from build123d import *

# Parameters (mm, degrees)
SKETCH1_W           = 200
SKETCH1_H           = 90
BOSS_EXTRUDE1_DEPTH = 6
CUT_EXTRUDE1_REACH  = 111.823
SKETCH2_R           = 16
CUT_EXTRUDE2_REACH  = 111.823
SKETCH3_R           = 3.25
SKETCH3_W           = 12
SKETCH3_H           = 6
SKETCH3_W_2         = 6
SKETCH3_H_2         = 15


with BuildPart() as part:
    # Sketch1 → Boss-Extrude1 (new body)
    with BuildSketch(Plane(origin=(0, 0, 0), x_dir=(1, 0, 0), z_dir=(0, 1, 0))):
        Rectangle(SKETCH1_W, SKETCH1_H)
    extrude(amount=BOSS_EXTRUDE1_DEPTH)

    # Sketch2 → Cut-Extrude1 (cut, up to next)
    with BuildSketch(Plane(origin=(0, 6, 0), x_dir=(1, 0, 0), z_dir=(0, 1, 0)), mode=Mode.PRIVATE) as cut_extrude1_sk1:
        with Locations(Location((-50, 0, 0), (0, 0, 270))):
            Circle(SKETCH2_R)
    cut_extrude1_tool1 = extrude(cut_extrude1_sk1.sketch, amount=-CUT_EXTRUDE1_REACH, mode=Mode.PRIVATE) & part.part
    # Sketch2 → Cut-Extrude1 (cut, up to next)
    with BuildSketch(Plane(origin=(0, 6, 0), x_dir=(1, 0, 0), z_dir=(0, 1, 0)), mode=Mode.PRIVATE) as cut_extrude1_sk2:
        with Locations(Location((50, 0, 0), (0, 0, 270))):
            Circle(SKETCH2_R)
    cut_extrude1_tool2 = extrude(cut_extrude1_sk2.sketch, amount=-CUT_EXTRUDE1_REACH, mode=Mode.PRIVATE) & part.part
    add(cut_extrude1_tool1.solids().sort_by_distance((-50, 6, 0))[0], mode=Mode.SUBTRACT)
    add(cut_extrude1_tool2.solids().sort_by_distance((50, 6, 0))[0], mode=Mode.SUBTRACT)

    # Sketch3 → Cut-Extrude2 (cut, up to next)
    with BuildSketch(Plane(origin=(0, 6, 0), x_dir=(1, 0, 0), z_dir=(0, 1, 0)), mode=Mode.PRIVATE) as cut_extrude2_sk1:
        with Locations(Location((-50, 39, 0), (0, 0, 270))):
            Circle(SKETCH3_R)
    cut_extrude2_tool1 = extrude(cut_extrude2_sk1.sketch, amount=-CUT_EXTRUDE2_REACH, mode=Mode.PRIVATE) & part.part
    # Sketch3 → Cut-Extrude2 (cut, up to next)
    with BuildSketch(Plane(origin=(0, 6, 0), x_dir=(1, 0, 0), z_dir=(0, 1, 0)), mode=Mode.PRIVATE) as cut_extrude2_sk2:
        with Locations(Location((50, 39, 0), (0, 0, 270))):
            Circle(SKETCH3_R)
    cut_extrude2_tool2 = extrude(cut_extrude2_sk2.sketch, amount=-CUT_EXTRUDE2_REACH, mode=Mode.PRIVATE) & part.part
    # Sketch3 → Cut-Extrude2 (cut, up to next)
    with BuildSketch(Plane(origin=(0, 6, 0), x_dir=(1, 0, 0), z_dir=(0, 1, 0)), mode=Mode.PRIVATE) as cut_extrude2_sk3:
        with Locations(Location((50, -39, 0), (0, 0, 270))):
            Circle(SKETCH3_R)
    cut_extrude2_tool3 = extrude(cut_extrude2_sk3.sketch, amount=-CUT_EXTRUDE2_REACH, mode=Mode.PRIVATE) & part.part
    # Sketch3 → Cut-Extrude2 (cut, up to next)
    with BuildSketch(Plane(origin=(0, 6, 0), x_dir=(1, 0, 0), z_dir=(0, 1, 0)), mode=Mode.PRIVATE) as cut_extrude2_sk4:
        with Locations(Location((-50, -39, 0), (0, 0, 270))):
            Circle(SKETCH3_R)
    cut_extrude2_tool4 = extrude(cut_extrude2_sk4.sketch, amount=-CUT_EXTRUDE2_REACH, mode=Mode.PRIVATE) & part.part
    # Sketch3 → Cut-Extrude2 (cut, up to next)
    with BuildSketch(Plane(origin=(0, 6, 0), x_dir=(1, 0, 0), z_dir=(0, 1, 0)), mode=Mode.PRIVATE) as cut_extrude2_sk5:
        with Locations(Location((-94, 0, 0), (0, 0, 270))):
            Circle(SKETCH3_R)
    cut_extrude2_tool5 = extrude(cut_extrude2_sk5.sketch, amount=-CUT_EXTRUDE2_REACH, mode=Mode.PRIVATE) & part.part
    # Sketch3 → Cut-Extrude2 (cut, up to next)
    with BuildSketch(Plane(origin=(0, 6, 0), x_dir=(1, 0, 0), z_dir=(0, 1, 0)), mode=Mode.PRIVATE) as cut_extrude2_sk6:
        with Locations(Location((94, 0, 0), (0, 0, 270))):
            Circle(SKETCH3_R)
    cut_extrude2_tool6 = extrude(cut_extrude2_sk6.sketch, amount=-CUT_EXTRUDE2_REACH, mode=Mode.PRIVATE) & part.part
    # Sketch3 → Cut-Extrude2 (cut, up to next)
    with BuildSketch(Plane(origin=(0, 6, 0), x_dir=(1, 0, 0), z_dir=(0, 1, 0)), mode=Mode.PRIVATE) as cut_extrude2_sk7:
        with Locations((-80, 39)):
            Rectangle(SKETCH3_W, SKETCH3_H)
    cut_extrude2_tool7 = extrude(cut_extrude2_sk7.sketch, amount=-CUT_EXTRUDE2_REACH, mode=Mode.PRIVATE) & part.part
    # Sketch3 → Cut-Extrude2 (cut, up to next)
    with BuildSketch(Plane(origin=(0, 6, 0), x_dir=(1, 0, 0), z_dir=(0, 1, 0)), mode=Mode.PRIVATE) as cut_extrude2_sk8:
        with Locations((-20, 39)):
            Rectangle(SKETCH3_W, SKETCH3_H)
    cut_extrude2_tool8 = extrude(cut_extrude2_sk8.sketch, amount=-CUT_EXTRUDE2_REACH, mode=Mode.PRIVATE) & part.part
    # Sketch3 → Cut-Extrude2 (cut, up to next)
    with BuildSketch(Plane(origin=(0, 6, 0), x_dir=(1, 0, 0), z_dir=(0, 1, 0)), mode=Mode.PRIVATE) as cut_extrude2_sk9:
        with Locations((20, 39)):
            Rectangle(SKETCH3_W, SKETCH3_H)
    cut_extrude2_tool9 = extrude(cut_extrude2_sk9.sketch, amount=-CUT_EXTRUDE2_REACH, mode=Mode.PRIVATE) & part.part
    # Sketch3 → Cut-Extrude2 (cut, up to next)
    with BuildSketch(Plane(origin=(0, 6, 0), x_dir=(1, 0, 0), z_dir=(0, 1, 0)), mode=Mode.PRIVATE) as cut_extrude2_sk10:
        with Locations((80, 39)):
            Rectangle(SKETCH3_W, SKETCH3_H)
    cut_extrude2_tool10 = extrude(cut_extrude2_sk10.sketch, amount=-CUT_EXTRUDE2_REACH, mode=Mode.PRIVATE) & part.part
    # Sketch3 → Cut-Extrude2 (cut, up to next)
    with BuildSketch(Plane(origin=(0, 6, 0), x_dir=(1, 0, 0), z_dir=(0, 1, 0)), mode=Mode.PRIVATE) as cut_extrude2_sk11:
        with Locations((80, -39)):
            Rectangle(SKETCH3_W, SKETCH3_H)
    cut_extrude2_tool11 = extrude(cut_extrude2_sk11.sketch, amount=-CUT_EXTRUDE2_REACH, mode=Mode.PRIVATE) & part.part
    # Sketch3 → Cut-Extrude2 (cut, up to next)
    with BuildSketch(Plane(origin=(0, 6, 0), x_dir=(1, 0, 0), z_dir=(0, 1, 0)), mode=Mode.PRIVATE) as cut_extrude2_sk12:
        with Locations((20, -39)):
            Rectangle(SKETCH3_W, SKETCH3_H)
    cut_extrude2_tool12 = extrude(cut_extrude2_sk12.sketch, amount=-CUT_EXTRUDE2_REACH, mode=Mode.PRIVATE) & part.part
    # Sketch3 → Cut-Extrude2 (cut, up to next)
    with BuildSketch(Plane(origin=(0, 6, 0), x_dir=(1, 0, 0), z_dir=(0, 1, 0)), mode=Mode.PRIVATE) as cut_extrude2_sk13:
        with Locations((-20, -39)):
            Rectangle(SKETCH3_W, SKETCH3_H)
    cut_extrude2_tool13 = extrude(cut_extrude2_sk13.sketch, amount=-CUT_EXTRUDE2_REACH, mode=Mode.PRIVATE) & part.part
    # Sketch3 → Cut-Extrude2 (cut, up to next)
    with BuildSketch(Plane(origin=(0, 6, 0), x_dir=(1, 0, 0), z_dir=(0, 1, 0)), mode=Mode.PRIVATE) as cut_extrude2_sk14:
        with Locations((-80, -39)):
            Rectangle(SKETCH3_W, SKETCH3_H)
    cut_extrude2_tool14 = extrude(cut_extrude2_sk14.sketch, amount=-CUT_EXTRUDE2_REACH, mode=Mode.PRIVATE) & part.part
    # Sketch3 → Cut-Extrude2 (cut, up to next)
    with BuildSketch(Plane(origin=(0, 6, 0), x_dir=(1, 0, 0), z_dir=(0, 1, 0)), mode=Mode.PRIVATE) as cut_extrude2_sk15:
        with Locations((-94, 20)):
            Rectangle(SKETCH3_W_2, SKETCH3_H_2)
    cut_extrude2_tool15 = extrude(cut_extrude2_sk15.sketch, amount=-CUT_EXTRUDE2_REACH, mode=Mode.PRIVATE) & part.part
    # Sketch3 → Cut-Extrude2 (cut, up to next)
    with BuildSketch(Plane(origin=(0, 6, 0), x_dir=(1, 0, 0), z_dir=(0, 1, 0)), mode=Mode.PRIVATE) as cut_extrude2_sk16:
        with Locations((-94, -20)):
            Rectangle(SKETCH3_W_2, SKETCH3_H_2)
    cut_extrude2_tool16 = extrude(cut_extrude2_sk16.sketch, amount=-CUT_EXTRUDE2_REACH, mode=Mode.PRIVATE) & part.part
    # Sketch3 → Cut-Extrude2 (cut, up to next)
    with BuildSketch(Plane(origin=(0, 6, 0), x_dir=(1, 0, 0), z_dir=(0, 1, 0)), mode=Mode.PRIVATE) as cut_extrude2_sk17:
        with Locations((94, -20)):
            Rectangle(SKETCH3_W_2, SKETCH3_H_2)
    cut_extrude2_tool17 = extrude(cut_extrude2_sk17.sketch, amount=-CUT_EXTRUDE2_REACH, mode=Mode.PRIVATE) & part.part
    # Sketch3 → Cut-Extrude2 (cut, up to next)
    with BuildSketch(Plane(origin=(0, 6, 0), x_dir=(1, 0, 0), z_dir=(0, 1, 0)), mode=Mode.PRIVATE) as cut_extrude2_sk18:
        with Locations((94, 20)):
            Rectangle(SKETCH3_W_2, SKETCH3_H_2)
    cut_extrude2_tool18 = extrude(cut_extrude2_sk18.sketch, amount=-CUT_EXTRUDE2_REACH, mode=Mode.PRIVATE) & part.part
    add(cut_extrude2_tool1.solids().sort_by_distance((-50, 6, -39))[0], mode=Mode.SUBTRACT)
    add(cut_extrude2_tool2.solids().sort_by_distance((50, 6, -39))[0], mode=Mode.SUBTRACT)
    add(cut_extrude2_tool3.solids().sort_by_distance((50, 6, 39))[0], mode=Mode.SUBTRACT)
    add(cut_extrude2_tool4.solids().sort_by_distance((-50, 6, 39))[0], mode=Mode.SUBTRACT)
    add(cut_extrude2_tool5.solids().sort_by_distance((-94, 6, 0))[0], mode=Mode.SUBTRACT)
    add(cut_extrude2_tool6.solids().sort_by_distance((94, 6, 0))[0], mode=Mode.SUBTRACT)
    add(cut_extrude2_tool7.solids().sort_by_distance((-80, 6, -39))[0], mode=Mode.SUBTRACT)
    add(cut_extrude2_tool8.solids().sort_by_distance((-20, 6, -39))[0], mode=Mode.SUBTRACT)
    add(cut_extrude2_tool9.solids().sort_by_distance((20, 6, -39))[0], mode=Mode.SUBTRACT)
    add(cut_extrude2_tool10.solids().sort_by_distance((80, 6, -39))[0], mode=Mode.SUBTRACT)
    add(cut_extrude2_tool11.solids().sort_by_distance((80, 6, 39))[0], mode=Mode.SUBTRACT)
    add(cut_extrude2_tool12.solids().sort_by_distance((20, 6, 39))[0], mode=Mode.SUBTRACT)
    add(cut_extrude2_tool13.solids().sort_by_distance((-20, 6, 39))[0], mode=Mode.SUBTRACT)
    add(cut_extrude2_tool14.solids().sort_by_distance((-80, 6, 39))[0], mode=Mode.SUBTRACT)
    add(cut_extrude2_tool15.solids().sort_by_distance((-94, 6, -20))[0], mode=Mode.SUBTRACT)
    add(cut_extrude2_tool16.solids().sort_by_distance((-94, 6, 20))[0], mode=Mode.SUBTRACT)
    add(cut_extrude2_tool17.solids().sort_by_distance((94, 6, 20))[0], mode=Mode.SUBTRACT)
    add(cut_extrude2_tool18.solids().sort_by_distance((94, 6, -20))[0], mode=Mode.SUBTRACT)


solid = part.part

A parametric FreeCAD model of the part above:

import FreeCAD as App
import Part
import Sketcher

V = App.Vector
Q = App.Units.Quantity

doc = App.newDocument("Part")
params = doc.addObject("Spreadsheet::Sheet", "Params")
for row, (alias, value) in enumerate([
    ("sketch1_width", "200 mm"),
    ("sketch1_height", "90 mm"),
    ("pad1_length", "6 mm"),
    ("sketch2_diameter", "32 mm"),
    ("sketch3_diameter", "32 mm"),
    ("sketch4_diameter", "6.5 mm"),
    ("sketch5_diameter", "6.5 mm"),
    ("sketch6_diameter", "6.5 mm"),
    ("sketch7_diameter", "6.5 mm"),
    ("sketch8_diameter", "6.5 mm"),
    ("sketch9_diameter", "6.5 mm"),
    ("sketch10_width", "12 mm"),
    ("sketch10_height", "6 mm"),
    ("sketch11_width", "12 mm"),
    ("sketch11_height", "6 mm"),
    ("sketch12_width", "12 mm"),
    ("sketch12_height", "6 mm"),
    ("sketch13_width", "12 mm"),
    ("sketch13_height", "6 mm"),
    ("sketch14_width", "12 mm"),
    ("sketch14_height", "6 mm"),
    ("sketch15_width", "12 mm"),
    ("sketch15_height", "6 mm"),
    ("sketch16_width", "12 mm"),
    ("sketch16_height", "6 mm"),
    ("sketch17_width", "12 mm"),
    ("sketch17_height", "6 mm"),
    ("sketch18_width", "6 mm"),
    ("sketch18_height", "15 mm"),
    ("sketch19_width", "6 mm"),
    ("sketch19_height", "15 mm"),
    ("sketch20_width", "6 mm"),
    ("sketch20_height", "15 mm"),
    ("sketch21_width", "6 mm"),
    ("sketch21_height", "15 mm"),
], start=1):
    params.set(f"A{row}", alias)
    params.set(f"B{row}", "=" + value)
    params.setAlias(f"B{row}", alias)

body = doc.addObject("PartDesign::Body", "Body")

sketch1 = doc.addObject("Sketcher::SketchObject", "Sketch")
body.addObject(sketch1)
sketch1.AttachmentSupport = (doc.XZ_Plane, [""])
sketch1.MapMode = "FlatFace"
sketch1.addGeometry(Part.LineSegment(V(-100, -45, 0), V(-100, 45, 0)), False)
sketch1.addGeometry(Part.LineSegment(V(-100, 45, 0), V(100, 45, 0)), False)
sketch1.addGeometry(Part.LineSegment(V(100, 45, 0), V(100, -45, 0)), False)
sketch1.addGeometry(Part.LineSegment(V(100, -45, 0), V(-100, -45, 0)), False)
sketch1.addConstraint(Sketcher.Constraint("Coincident", 0, 2, 1, 1))
sketch1.addConstraint(Sketcher.Constraint("Coincident", 1, 2, 2, 1))
sketch1.addConstraint(Sketcher.Constraint("Coincident", 2, 2, 3, 1))
sketch1.addConstraint(Sketcher.Constraint("Coincident", 3, 2, 0, 1))
sketch1.addConstraint(Sketcher.Constraint("Vertical", 0))
sketch1.addConstraint(Sketcher.Constraint("Horizontal", 1))
sketch1.addConstraint(Sketcher.Constraint("Vertical", 2))
sketch1.addConstraint(Sketcher.Constraint("Horizontal", 3))
sketch1.addConstraint(Sketcher.Constraint("Symmetric", 0, 2, 2, 2, -1, 1))
sketch1.addConstraint(Sketcher.Constraint("DistanceX", 1, 1, 1, 2, Q("200 mm")))
sketch1.addConstraint(Sketcher.Constraint("DistanceY", 0, 1, 0, 2, Q("90 mm")))
sketch1.setExpression("Constraints[9]", "Params.sketch1_width")
sketch1.setExpression("Constraints[10]", "Params.sketch1_height")
pad1 = doc.addObject("PartDesign::Pad", "Pad")
body.addObject(pad1)
pad1.Profile = sketch1
pad1.setExpression("Length", "Params.pad1_length")
pad1.Reversed = True

sketch2 = doc.addObject("Sketcher::SketchObject", "Sketch001")
body.addObject(sketch2)
sketch2.AttachmentSupport = (doc.XZ_Plane, [""])
sketch2.MapMode = "FlatFace"
sketch2.AttachmentOffset = App.Placement(V(0, 0, -6), App.Rotation())
sketch2.addGeometry(Part.Circle(V(-50, 0, 0), V(0, 0, 1), 16), False)
sketch2.addConstraint(Sketcher.Constraint("PointOnObject", 0, 3, -1))
sketch2.addConstraint(Sketcher.Constraint("Diameter", 0, Q("32 mm")))
sketch2.addConstraint(Sketcher.Constraint("DistanceX", 0, 3, -1, 1, Q("50 mm")))
sketch2.setExpression("Constraints[1]", "Params.sketch2_diameter")
pocket1 = doc.addObject("PartDesign::Pocket", "Pocket")
body.addObject(pocket1)
pocket1.Profile = sketch2
pocket1.Type = "UpToFirst"
pocket1.Reversed = True

sketch3 = doc.addObject("Sketcher::SketchObject", "Sketch002")
body.addObject(sketch3)
sketch3.AttachmentSupport = (doc.XZ_Plane, [""])
sketch3.MapMode = "FlatFace"
sketch3.AttachmentOffset = App.Placement(V(0, 0, -6), App.Rotation())
sketch3.addGeometry(Part.Circle(V(50, 0, 0), V(0, 0, 1), 16), False)
sketch3.addConstraint(Sketcher.Constraint("PointOnObject", 0, 3, -1))
sketch3.addConstraint(Sketcher.Constraint("Diameter", 0, Q("32 mm")))
sketch3.addConstraint(Sketcher.Constraint("DistanceX", -1, 1, 0, 3, Q("50 mm")))
sketch3.setExpression("Constraints[1]", "Params.sketch3_diameter")
pocket2 = doc.addObject("PartDesign::Pocket", "Pocket001")
body.addObject(pocket2)
pocket2.Profile = sketch3
pocket2.Type = "UpToFirst"
pocket2.Reversed = True

sketch4 = doc.addObject("Sketcher::SketchObject", "Sketch003")
body.addObject(sketch4)
sketch4.AttachmentSupport = (doc.XZ_Plane, [""])
sketch4.MapMode = "FlatFace"
sketch4.AttachmentOffset = App.Placement(V(0, 0, -6), App.Rotation())
sketch4.addGeometry(Part.Circle(V(-50, -39, 0), V(0, 0, 1), 3.2), False)
sketch4.addConstraint(Sketcher.Constraint("Diameter", 0, Q("6.5 mm")))
sketch4.addConstraint(Sketcher.Constraint("DistanceX", 0, 3, -1, 1, Q("50 mm")))
sketch4.addConstraint(Sketcher.Constraint("DistanceY", 0, 3, -1, 1, Q("39 mm")))
sketch4.setExpression("Constraints[0]", "Params.sketch4_diameter")
pocket3 = doc.addObject("PartDesign::Pocket", "Pocket002")
body.addObject(pocket3)
pocket3.Profile = sketch4
pocket3.Type = "UpToFirst"
pocket3.Reversed = True

sketch5 = doc.addObject("Sketcher::SketchObject", "Sketch004")
body.addObject(sketch5)
sketch5.AttachmentSupport = (doc.XZ_Plane, [""])
sketch5.MapMode = "FlatFace"
sketch5.AttachmentOffset = App.Placement(V(0, 0, -6), App.Rotation())
sketch5.addGeometry(Part.Circle(V(50, -39, 0), V(0, 0, 1), 3.2), False)
sketch5.addConstraint(Sketcher.Constraint("Diameter", 0, Q("6.5 mm")))
sketch5.addConstraint(Sketcher.Constraint("DistanceX", -1, 1, 0, 3, Q("50 mm")))
sketch5.addConstraint(Sketcher.Constraint("DistanceY", 0, 3, -1, 1, Q("39 mm")))
sketch5.setExpression("Constraints[0]", "Params.sketch5_diameter")
pocket4 = doc.addObject("PartDesign::Pocket", "Pocket003")
body.addObject(pocket4)
pocket4.Profile = sketch5
pocket4.Type = "UpToFirst"
pocket4.Reversed = True

sketch6 = doc.addObject("Sketcher::SketchObject", "Sketch005")
body.addObject(sketch6)
sketch6.AttachmentSupport = (doc.XZ_Plane, [""])
sketch6.MapMode = "FlatFace"
sketch6.AttachmentOffset = App.Placement(V(0, 0, -6), App.Rotation())
sketch6.addGeometry(Part.Circle(V(50, 39, 0), V(0, 0, 1), 3.2), False)
sketch6.addConstraint(Sketcher.Constraint("Diameter", 0, Q("6.5 mm")))
sketch6.addConstraint(Sketcher.Constraint("DistanceX", -1, 1, 0, 3, Q("50 mm")))
sketch6.addConstraint(Sketcher.Constraint("DistanceY", -1, 1, 0, 3, Q("39 mm")))
sketch6.setExpression("Constraints[0]", "Params.sketch6_diameter")
pocket5 = doc.addObject("PartDesign::Pocket", "Pocket004")
body.addObject(pocket5)
pocket5.Profile = sketch6
pocket5.Type = "UpToFirst"
pocket5.Reversed = True

sketch7 = doc.addObject("Sketcher::SketchObject", "Sketch006")
body.addObject(sketch7)
sketch7.AttachmentSupport = (doc.XZ_Plane, [""])
sketch7.MapMode = "FlatFace"
sketch7.AttachmentOffset = App.Placement(V(0, 0, -6), App.Rotation())
sketch7.addGeometry(Part.Circle(V(-50, 39, 0), V(0, 0, 1), 3.2), False)
sketch7.addConstraint(Sketcher.Constraint("Diameter", 0, Q("6.5 mm")))
sketch7.addConstraint(Sketcher.Constraint("DistanceX", 0, 3, -1, 1, Q("50 mm")))
sketch7.addConstraint(Sketcher.Constraint("DistanceY", -1, 1, 0, 3, Q("39 mm")))
sketch7.setExpression("Constraints[0]", "Params.sketch7_diameter")
pocket6 = doc.addObject("PartDesign::Pocket", "Pocket005")
body.addObject(pocket6)
pocket6.Profile = sketch7
pocket6.Type = "UpToFirst"
pocket6.Reversed = True

sketch8 = doc.addObject("Sketcher::SketchObject", "Sketch007")
body.addObject(sketch8)
sketch8.AttachmentSupport = (doc.XZ_Plane, [""])
sketch8.MapMode = "FlatFace"
sketch8.AttachmentOffset = App.Placement(V(0, 0, -6), App.Rotation())
sketch8.addGeometry(Part.Circle(V(-94, 0, 0), V(0, 0, 1), 3.2), False)
sketch8.addConstraint(Sketcher.Constraint("PointOnObject", 0, 3, -1))
sketch8.addConstraint(Sketcher.Constraint("Diameter", 0, Q("6.5 mm")))
sketch8.addConstraint(Sketcher.Constraint("DistanceX", 0, 3, -1, 1, Q("94 mm")))
sketch8.setExpression("Constraints[1]", "Params.sketch8_diameter")
pocket7 = doc.addObject("PartDesign::Pocket", "Pocket006")
body.addObject(pocket7)
pocket7.Profile = sketch8
pocket7.Type = "UpToFirst"
pocket7.Reversed = True

sketch9 = doc.addObject("Sketcher::SketchObject", "Sketch008")
body.addObject(sketch9)
sketch9.AttachmentSupport = (doc.XZ_Plane, [""])
sketch9.MapMode = "FlatFace"
sketch9.AttachmentOffset = App.Placement(V(0, 0, -6), App.Rotation())
sketch9.addGeometry(Part.Circle(V(94, 0, 0), V(0, 0, 1), 3.2), False)
sketch9.addConstraint(Sketcher.Constraint("PointOnObject", 0, 3, -1))
sketch9.addConstraint(Sketcher.Constraint("Diameter", 0, Q("6.5 mm")))
sketch9.addConstraint(Sketcher.Constraint("DistanceX", -1, 1, 0, 3, Q("94 mm")))
sketch9.setExpression("Constraints[1]", "Params.sketch9_diameter")
pocket8 = doc.addObject("PartDesign::Pocket", "Pocket007")
body.addObject(pocket8)
pocket8.Profile = sketch9
pocket8.Type = "UpToFirst"
pocket8.Reversed = True

sketch10 = doc.addObject("Sketcher::SketchObject", "Sketch009")
body.addObject(sketch10)
sketch10.AttachmentSupport = (doc.XZ_Plane, [""])
sketch10.MapMode = "FlatFace"
sketch10.AttachmentOffset = App.Placement(V(0, 0, -6), App.Rotation())
sketch10.addGeometry(Part.LineSegment(V(-86, -42, 0), V(-86, -36, 0)), False)
sketch10.addGeometry(Part.LineSegment(V(-86, -36, 0), V(-74, -36, 0)), False)
sketch10.addGeometry(Part.LineSegment(V(-74, -36, 0), V(-74, -42, 0)), False)
sketch10.addGeometry(Part.LineSegment(V(-74, -42, 0), V(-86, -42, 0)), False)
sketch10.addConstraint(Sketcher.Constraint("Coincident", 0, 2, 1, 1))
sketch10.addConstraint(Sketcher.Constraint("Coincident", 1, 2, 2, 1))
sketch10.addConstraint(Sketcher.Constraint("Coincident", 2, 2, 3, 1))
sketch10.addConstraint(Sketcher.Constraint("Coincident", 3, 2, 0, 1))
sketch10.addConstraint(Sketcher.Constraint("Vertical", 0))
sketch10.addConstraint(Sketcher.Constraint("Horizontal", 1))
sketch10.addConstraint(Sketcher.Constraint("Vertical", 2))
sketch10.addConstraint(Sketcher.Constraint("Horizontal", 3))
sketch10.addConstraint(Sketcher.Constraint("DistanceX", 1, 1, 1, 2, Q("12 mm")))
sketch10.addConstraint(Sketcher.Constraint("DistanceY", 0, 1, 0, 2, Q("6 mm")))
sketch10.addConstraint(Sketcher.Constraint("DistanceX", 0, 2, -1, 1, Q("86 mm")))
sketch10.addConstraint(Sketcher.Constraint("DistanceY", 0, 2, -1, 1, Q("36 mm")))
sketch10.setExpression("Constraints[8]", "Params.sketch10_width")
sketch10.setExpression("Constraints[9]", "Params.sketch10_height")
pocket9 = doc.addObject("PartDesign::Pocket", "Pocket008")
body.addObject(pocket9)
pocket9.Profile = sketch10
pocket9.Type = "UpToFirst"
pocket9.Reversed = True

sketch11 = doc.addObject("Sketcher::SketchObject", "Sketch010")
body.addObject(sketch11)
sketch11.AttachmentSupport = (doc.XZ_Plane, [""])
sketch11.MapMode = "FlatFace"
sketch11.AttachmentOffset = App.Placement(V(0, 0, -6), App.Rotation())
sketch11.addGeometry(Part.LineSegment(V(-26, -42, 0), V(-26, -36, 0)), False)
sketch11.addGeometry(Part.LineSegment(V(-26, -36, 0), V(-14, -36, 0)), False)
sketch11.addGeometry(Part.LineSegment(V(-14, -36, 0), V(-14, -42, 0)), False)
sketch11.addGeometry(Part.LineSegment(V(-14, -42, 0), V(-26, -42, 0)), False)
sketch11.addConstraint(Sketcher.Constraint("Coincident", 0, 2, 1, 1))
sketch11.addConstraint(Sketcher.Constraint("Coincident", 1, 2, 2, 1))
sketch11.addConstraint(Sketcher.Constraint("Coincident", 2, 2, 3, 1))
sketch11.addConstraint(Sketcher.Constraint("Coincident", 3, 2, 0, 1))
sketch11.addConstraint(Sketcher.Constraint("Vertical", 0))
sketch11.addConstraint(Sketcher.Constraint("Horizontal", 1))
sketch11.addConstraint(Sketcher.Constraint("Vertical", 2))
sketch11.addConstraint(Sketcher.Constraint("Horizontal", 3))
sketch11.addConstraint(Sketcher.Constraint("DistanceX", 1, 1, 1, 2, Q("12 mm")))
sketch11.addConstraint(Sketcher.Constraint("DistanceY", 0, 1, 0, 2, Q("6 mm")))
sketch11.addConstraint(Sketcher.Constraint("DistanceX", 0, 2, -1, 1, Q("26 mm")))
sketch11.addConstraint(Sketcher.Constraint("DistanceY", 0, 2, -1, 1, Q("36 mm")))
sketch11.setExpression("Constraints[8]", "Params.sketch11_width")
sketch11.setExpression("Constraints[9]", "Params.sketch11_height")
pocket10 = doc.addObject("PartDesign::Pocket", "Pocket009")
body.addObject(pocket10)
pocket10.Profile = sketch11
pocket10.Type = "UpToFirst"
pocket10.Reversed = True

sketch12 = doc.addObject("Sketcher::SketchObject", "Sketch011")
body.addObject(sketch12)
sketch12.AttachmentSupport = (doc.XZ_Plane, [""])
sketch12.MapMode = "FlatFace"
sketch12.AttachmentOffset = App.Placement(V(0, 0, -6), App.Rotation())
sketch12.addGeometry(Part.LineSegment(V(14, -42, 0), V(14, -36, 0)), False)
sketch12.addGeometry(Part.LineSegment(V(14, -36, 0), V(26, -36, 0)), False)
sketch12.addGeometry(Part.LineSegment(V(26, -36, 0), V(26, -42, 0)), False)
sketch12.addGeometry(Part.LineSegment(V(26, -42, 0), V(14, -42, 0)), False)
sketch12.addConstraint(Sketcher.Constraint("Coincident", 0, 2, 1, 1))
sketch12.addConstraint(Sketcher.Constraint("Coincident", 1, 2, 2, 1))
sketch12.addConstraint(Sketcher.Constraint("Coincident", 2, 2, 3, 1))
sketch12.addConstraint(Sketcher.Constraint("Coincident", 3, 2, 0, 1))
sketch12.addConstraint(Sketcher.Constraint("Vertical", 0))
sketch12.addConstraint(Sketcher.Constraint("Horizontal", 1))
sketch12.addConstraint(Sketcher.Constraint("Vertical", 2))
sketch12.addConstraint(Sketcher.Constraint("Horizontal", 3))
sketch12.addConstraint(Sketcher.Constraint("DistanceX", 1, 1, 1, 2, Q("12 mm")))
sketch12.addConstraint(Sketcher.Constraint("DistanceY", 0, 1, 0, 2, Q("6 mm")))
sketch12.addConstraint(Sketcher.Constraint("DistanceX", -1, 1, 0, 2, Q("14 mm")))
sketch12.addConstraint(Sketcher.Constraint("DistanceY", 0, 2, -1, 1, Q("36 mm")))
sketch12.setExpression("Constraints[8]", "Params.sketch12_width")
sketch12.setExpression("Constraints[9]", "Params.sketch12_height")
pocket11 = doc.addObject("PartDesign::Pocket", "Pocket010")
body.addObject(pocket11)
pocket11.Profile = sketch12
pocket11.Type = "UpToFirst"
pocket11.Reversed = True

sketch13 = doc.addObject("Sketcher::SketchObject", "Sketch012")
body.addObject(sketch13)
sketch13.AttachmentSupport = (doc.XZ_Plane, [""])
sketch13.MapMode = "FlatFace"
sketch13.AttachmentOffset = App.Placement(V(0, 0, -6), App.Rotation())
sketch13.addGeometry(Part.LineSegment(V(74, -42, 0), V(74, -36, 0)), False)
sketch13.addGeometry(Part.LineSegment(V(74, -36, 0), V(86, -36, 0)), False)
sketch13.addGeometry(Part.LineSegment(V(86, -36, 0), V(86, -42, 0)), False)
sketch13.addGeometry(Part.LineSegment(V(86, -42, 0), V(74, -42, 0)), False)
sketch13.addConstraint(Sketcher.Constraint("Coincident", 0, 2, 1, 1))
sketch13.addConstraint(Sketcher.Constraint("Coincident", 1, 2, 2, 1))
sketch13.addConstraint(Sketcher.Constraint("Coincident", 2, 2, 3, 1))
sketch13.addConstraint(Sketcher.Constraint("Coincident", 3, 2, 0, 1))
sketch13.addConstraint(Sketcher.Constraint("Vertical", 0))
sketch13.addConstraint(Sketcher.Constraint("Horizontal", 1))
sketch13.addConstraint(Sketcher.Constraint("Vertical", 2))
sketch13.addConstraint(Sketcher.Constraint("Horizontal", 3))
sketch13.addConstraint(Sketcher.Constraint("DistanceX", 1, 1, 1, 2, Q("12 mm")))
sketch13.addConstraint(Sketcher.Constraint("DistanceY", 0, 1, 0, 2, Q("6 mm")))
sketch13.addConstraint(Sketcher.Constraint("DistanceX", -1, 1, 0, 2, Q("74 mm")))
sketch13.addConstraint(Sketcher.Constraint("DistanceY", 0, 2, -1, 1, Q("36 mm")))
sketch13.setExpression("Constraints[8]", "Params.sketch13_width")
sketch13.setExpression("Constraints[9]", "Params.sketch13_height")
pocket12 = doc.addObject("PartDesign::Pocket", "Pocket011")
body.addObject(pocket12)
pocket12.Profile = sketch13
pocket12.Type = "UpToFirst"
pocket12.Reversed = True

sketch14 = doc.addObject("Sketcher::SketchObject", "Sketch013")
body.addObject(sketch14)
sketch14.AttachmentSupport = (doc.XZ_Plane, [""])
sketch14.MapMode = "FlatFace"
sketch14.AttachmentOffset = App.Placement(V(0, 0, -6), App.Rotation())
sketch14.addGeometry(Part.LineSegment(V(74, 36, 0), V(74, 42, 0)), False)
sketch14.addGeometry(Part.LineSegment(V(74, 42, 0), V(86, 42, 0)), False)
sketch14.addGeometry(Part.LineSegment(V(86, 42, 0), V(86, 36, 0)), False)
sketch14.addGeometry(Part.LineSegment(V(86, 36, 0), V(74, 36, 0)), False)
sketch14.addConstraint(Sketcher.Constraint("Coincident", 0, 2, 1, 1))
sketch14.addConstraint(Sketcher.Constraint("Coincident", 1, 2, 2, 1))
sketch14.addConstraint(Sketcher.Constraint("Coincident", 2, 2, 3, 1))
sketch14.addConstraint(Sketcher.Constraint("Coincident", 3, 2, 0, 1))
sketch14.addConstraint(Sketcher.Constraint("Vertical", 0))
sketch14.addConstraint(Sketcher.Constraint("Horizontal", 1))
sketch14.addConstraint(Sketcher.Constraint("Vertical", 2))
sketch14.addConstraint(Sketcher.Constraint("Horizontal", 3))
sketch14.addConstraint(Sketcher.Constraint("DistanceX", 1, 1, 1, 2, Q("12 mm")))
sketch14.addConstraint(Sketcher.Constraint("DistanceY", 0, 1, 0, 2, Q("6 mm")))
sketch14.addConstraint(Sketcher.Constraint("DistanceX", -1, 1, 0, 2, Q("74 mm")))
sketch14.addConstraint(Sketcher.Constraint("DistanceY", -1, 1, 0, 2, Q("42 mm")))
sketch14.setExpression("Constraints[8]", "Params.sketch14_width")
sketch14.setExpression("Constraints[9]", "Params.sketch14_height")
pocket13 = doc.addObject("PartDesign::Pocket", "Pocket012")
body.addObject(pocket13)
pocket13.Profile = sketch14
pocket13.Type = "UpToFirst"
pocket13.Reversed = True

sketch15 = doc.addObject("Sketcher::SketchObject", "Sketch014")
body.addObject(sketch15)
sketch15.AttachmentSupport = (doc.XZ_Plane, [""])
sketch15.MapMode = "FlatFace"
sketch15.AttachmentOffset = App.Placement(V(0, 0, -6), App.Rotation())
sketch15.addGeometry(Part.LineSegment(V(14, 36, 0), V(14, 42, 0)), False)
sketch15.addGeometry(Part.LineSegment(V(14, 42, 0), V(26, 42, 0)), False)
sketch15.addGeometry(Part.LineSegment(V(26, 42, 0), V(26, 36, 0)), False)
sketch15.addGeometry(Part.LineSegment(V(26, 36, 0), V(14, 36, 0)), False)
sketch15.addConstraint(Sketcher.Constraint("Coincident", 0, 2, 1, 1))
sketch15.addConstraint(Sketcher.Constraint("Coincident", 1, 2, 2, 1))
sketch15.addConstraint(Sketcher.Constraint("Coincident", 2, 2, 3, 1))
sketch15.addConstraint(Sketcher.Constraint("Coincident", 3, 2, 0, 1))
sketch15.addConstraint(Sketcher.Constraint("Vertical", 0))
sketch15.addConstraint(Sketcher.Constraint("Horizontal", 1))
sketch15.addConstraint(Sketcher.Constraint("Vertical", 2))
sketch15.addConstraint(Sketcher.Constraint("Horizontal", 3))
sketch15.addConstraint(Sketcher.Constraint("DistanceX", 1, 1, 1, 2, Q("12 mm")))
sketch15.addConstraint(Sketcher.Constraint("DistanceY", 0, 1, 0, 2, Q("6 mm")))
sketch15.addConstraint(Sketcher.Constraint("DistanceX", -1, 1, 0, 2, Q("14 mm")))
sketch15.addConstraint(Sketcher.Constraint("DistanceY", -1, 1, 0, 2, Q("42 mm")))
sketch15.setExpression("Constraints[8]", "Params.sketch15_width")
sketch15.setExpression("Constraints[9]", "Params.sketch15_height")
pocket14 = doc.addObject("PartDesign::Pocket", "Pocket013")
body.addObject(pocket14)
pocket14.Profile = sketch15
pocket14.Type = "UpToFirst"
pocket14.Reversed = True

sketch16 = doc.addObject("Sketcher::SketchObject", "Sketch015")
body.addObject(sketch16)
sketch16.AttachmentSupport = (doc.XZ_Plane, [""])
sketch16.MapMode = "FlatFace"
sketch16.AttachmentOffset = App.Placement(V(0, 0, -6), App.Rotation())
sketch16.addGeometry(Part.LineSegment(V(-26, 36, 0), V(-26, 42, 0)), False)
sketch16.addGeometry(Part.LineSegment(V(-26, 42, 0), V(-14, 42, 0)), False)
sketch16.addGeometry(Part.LineSegment(V(-14, 42, 0), V(-14, 36, 0)), False)
sketch16.addGeometry(Part.LineSegment(V(-14, 36, 0), V(-26, 36, 0)), False)
sketch16.addConstraint(Sketcher.Constraint("Coincident", 0, 2, 1, 1))
sketch16.addConstraint(Sketcher.Constraint("Coincident", 1, 2, 2, 1))
sketch16.addConstraint(Sketcher.Constraint("Coincident", 2, 2, 3, 1))
sketch16.addConstraint(Sketcher.Constraint("Coincident", 3, 2, 0, 1))
sketch16.addConstraint(Sketcher.Constraint("Vertical", 0))
sketch16.addConstraint(Sketcher.Constraint("Horizontal", 1))
sketch16.addConstraint(Sketcher.Constraint("Vertical", 2))
sketch16.addConstraint(Sketcher.Constraint("Horizontal", 3))
sketch16.addConstraint(Sketcher.Constraint("DistanceX", 1, 1, 1, 2, Q("12 mm")))
sketch16.addConstraint(Sketcher.Constraint("DistanceY", 0, 1, 0, 2, Q("6 mm")))
sketch16.addConstraint(Sketcher.Constraint("DistanceX", 0, 2, -1, 1, Q("26 mm")))
sketch16.addConstraint(Sketcher.Constraint("DistanceY", -1, 1, 0, 2, Q("42 mm")))
sketch16.setExpression("Constraints[8]", "Params.sketch16_width")
sketch16.setExpression("Constraints[9]", "Params.sketch16_height")
pocket15 = doc.addObject("PartDesign::Pocket", "Pocket014")
body.addObject(pocket15)
pocket15.Profile = sketch16
pocket15.Type = "UpToFirst"
pocket15.Reversed = True

sketch17 = doc.addObject("Sketcher::SketchObject", "Sketch016")
body.addObject(sketch17)
sketch17.AttachmentSupport = (doc.XZ_Plane, [""])
sketch17.MapMode = "FlatFace"
sketch17.AttachmentOffset = App.Placement(V(0, 0, -6), App.Rotation())
sketch17.addGeometry(Part.LineSegment(V(-86, 36, 0), V(-86, 42, 0)), False)
sketch17.addGeometry(Part.LineSegment(V(-86, 42, 0), V(-74, 42, 0)), False)
sketch17.addGeometry(Part.LineSegment(V(-74, 42, 0), V(-74, 36, 0)), False)
sketch17.addGeometry(Part.LineSegment(V(-74, 36, 0), V(-86, 36, 0)), False)
sketch17.addConstraint(Sketcher.Constraint("Coincident", 0, 2, 1, 1))
sketch17.addConstraint(Sketcher.Constraint("Coincident", 1, 2, 2, 1))
sketch17.addConstraint(Sketcher.Constraint("Coincident", 2, 2, 3, 1))
sketch17.addConstraint(Sketcher.Constraint("Coincident", 3, 2, 0, 1))
sketch17.addConstraint(Sketcher.Constraint("Vertical", 0))
sketch17.addConstraint(Sketcher.Constraint("Horizontal", 1))
sketch17.addConstraint(Sketcher.Constraint("Vertical", 2))
sketch17.addConstraint(Sketcher.Constraint("Horizontal", 3))
sketch17.addConstraint(Sketcher.Constraint("DistanceX", 1, 1, 1, 2, Q("12 mm")))
sketch17.addConstraint(Sketcher.Constraint("DistanceY", 0, 1, 0, 2, Q("6 mm")))
sketch17.addConstraint(Sketcher.Constraint("DistanceX", 0, 2, -1, 1, Q("86 mm")))
sketch17.addConstraint(Sketcher.Constraint("DistanceY", -1, 1, 0, 2, Q("42 mm")))
sketch17.setExpression("Constraints[8]", "Params.sketch17_width")
sketch17.setExpression("Constraints[9]", "Params.sketch17_height")
pocket16 = doc.addObject("PartDesign::Pocket", "Pocket015")
body.addObject(pocket16)
pocket16.Profile = sketch17
pocket16.Type = "UpToFirst"
pocket16.Reversed = True

sketch18 = doc.addObject("Sketcher::SketchObject", "Sketch017")
body.addObject(sketch18)
sketch18.AttachmentSupport = (doc.XZ_Plane, [""])
sketch18.MapMode = "FlatFace"
sketch18.AttachmentOffset = App.Placement(V(0, 0, -6), App.Rotation())
sketch18.addGeometry(Part.LineSegment(V(-97, -28, 0), V(-97, -12, 0)), False)
sketch18.addGeometry(Part.LineSegment(V(-97, -12, 0), V(-91, -12, 0)), False)
sketch18.addGeometry(Part.LineSegment(V(-91, -12, 0), V(-91, -28, 0)), False)
sketch18.addGeometry(Part.LineSegment(V(-91, -28, 0), V(-97, -28, 0)), False)
sketch18.addConstraint(Sketcher.Constraint("Coincident", 0, 2, 1, 1))
sketch18.addConstraint(Sketcher.Constraint("Coincident", 1, 2, 2, 1))
sketch18.addConstraint(Sketcher.Constraint("Coincident", 2, 2, 3, 1))
sketch18.addConstraint(Sketcher.Constraint("Coincident", 3, 2, 0, 1))
sketch18.addConstraint(Sketcher.Constraint("Vertical", 0))
sketch18.addConstraint(Sketcher.Constraint("Horizontal", 1))
sketch18.addConstraint(Sketcher.Constraint("Vertical", 2))
sketch18.addConstraint(Sketcher.Constraint("Horizontal", 3))
sketch18.addConstraint(Sketcher.Constraint("DistanceX", 1, 1, 1, 2, Q("6 mm")))
sketch18.addConstraint(Sketcher.Constraint("DistanceY", 0, 1, 0, 2, Q("15 mm")))
sketch18.addConstraint(Sketcher.Constraint("DistanceX", 0, 2, -1, 1, Q("97 mm")))
sketch18.addConstraint(Sketcher.Constraint("DistanceY", 0, 2, -1, 1, Q("12.5 mm")))
sketch18.setExpression("Constraints[8]", "Params.sketch18_width")
sketch18.setExpression("Constraints[9]", "Params.sketch18_height")
pocket17 = doc.addObject("PartDesign::Pocket", "Pocket016")
body.addObject(pocket17)
pocket17.Profile = sketch18
pocket17.Type = "UpToFirst"
pocket17.Reversed = True

sketch19 = doc.addObject("Sketcher::SketchObject", "Sketch018")
body.addObject(sketch19)
sketch19.AttachmentSupport = (doc.XZ_Plane, [""])
sketch19.MapMode = "FlatFace"
sketch19.AttachmentOffset = App.Placement(V(0, 0, -6), App.Rotation())
sketch19.addGeometry(Part.LineSegment(V(-97, 12, 0), V(-97, 28, 0)), False)
sketch19.addGeometry(Part.LineSegment(V(-97, 28, 0), V(-91, 28, 0)), False)
sketch19.addGeometry(Part.LineSegment(V(-91, 28, 0), V(-91, 12, 0)), False)
sketch19.addGeometry(Part.LineSegment(V(-91, 12, 0), V(-97, 12, 0)), False)
sketch19.addConstraint(Sketcher.Constraint("Coincident", 0, 2, 1, 1))
sketch19.addConstraint(Sketcher.Constraint("Coincident", 1, 2, 2, 1))
sketch19.addConstraint(Sketcher.Constraint("Coincident", 2, 2, 3, 1))
sketch19.addConstraint(Sketcher.Constraint("Coincident", 3, 2, 0, 1))
sketch19.addConstraint(Sketcher.Constraint("Vertical", 0))
sketch19.addConstraint(Sketcher.Constraint("Horizontal", 1))
sketch19.addConstraint(Sketcher.Constraint("Vertical", 2))
sketch19.addConstraint(Sketcher.Constraint("Horizontal", 3))
sketch19.addConstraint(Sketcher.Constraint("DistanceX", 1, 1, 1, 2, Q("6 mm")))
sketch19.addConstraint(Sketcher.Constraint("DistanceY", 0, 1, 0, 2, Q("15 mm")))
sketch19.addConstraint(Sketcher.Constraint("DistanceX", 0, 2, -1, 1, Q("97 mm")))
sketch19.addConstraint(Sketcher.Constraint("DistanceY", -1, 1, 0, 2, Q("27.5 mm")))
sketch19.setExpression("Constraints[8]", "Params.sketch19_width")
sketch19.setExpression("Constraints[9]", "Params.sketch19_height")
pocket18 = doc.addObject("PartDesign::Pocket", "Pocket017")
body.addObject(pocket18)
pocket18.Profile = sketch19
pocket18.Type = "UpToFirst"
pocket18.Reversed = True

sketch20 = doc.addObject("Sketcher::SketchObject", "Sketch019")
body.addObject(sketch20)
sketch20.AttachmentSupport = (doc.XZ_Plane, [""])
sketch20.MapMode = "FlatFace"
sketch20.AttachmentOffset = App.Placement(V(0, 0, -6), App.Rotation())
sketch20.addGeometry(Part.LineSegment(V(91, 12, 0), V(91, 28, 0)), False)
sketch20.addGeometry(Part.LineSegment(V(91, 28, 0), V(97, 28, 0)), False)
sketch20.addGeometry(Part.LineSegment(V(97, 28, 0), V(97, 12, 0)), False)
sketch20.addGeometry(Part.LineSegment(V(97, 12, 0), V(91, 12, 0)), False)
sketch20.addConstraint(Sketcher.Constraint("Coincident", 0, 2, 1, 1))
sketch20.addConstraint(Sketcher.Constraint("Coincident", 1, 2, 2, 1))
sketch20.addConstraint(Sketcher.Constraint("Coincident", 2, 2, 3, 1))
sketch20.addConstraint(Sketcher.Constraint("Coincident", 3, 2, 0, 1))
sketch20.addConstraint(Sketcher.Constraint("Vertical", 0))
sketch20.addConstraint(Sketcher.Constraint("Horizontal", 1))
sketch20.addConstraint(Sketcher.Constraint("Vertical", 2))
sketch20.addConstraint(Sketcher.Constraint("Horizontal", 3))
sketch20.addConstraint(Sketcher.Constraint("DistanceX", 1, 1, 1, 2, Q("6 mm")))
sketch20.addConstraint(Sketcher.Constraint("DistanceY", 0, 1, 0, 2, Q("15 mm")))
sketch20.addConstraint(Sketcher.Constraint("DistanceX", -1, 1, 0, 2, Q("91 mm")))
sketch20.addConstraint(Sketcher.Constraint("DistanceY", -1, 1, 0, 2, Q("27.5 mm")))
sketch20.setExpression("Constraints[8]", "Params.sketch20_width")
sketch20.setExpression("Constraints[9]", "Params.sketch20_height")
pocket19 = doc.addObject("PartDesign::Pocket", "Pocket018")
body.addObject(pocket19)
pocket19.Profile = sketch20
pocket19.Type = "UpToFirst"
pocket19.Reversed = True

sketch21 = doc.addObject("Sketcher::SketchObject", "Sketch020")
body.addObject(sketch21)
sketch21.AttachmentSupport = (doc.XZ_Plane, [""])
sketch21.MapMode = "FlatFace"
sketch21.AttachmentOffset = App.Placement(V(0, 0, -6), App.Rotation())
sketch21.addGeometry(Part.LineSegment(V(91, -28, 0), V(91, -12, 0)), False)
sketch21.addGeometry(Part.LineSegment(V(91, -12, 0), V(97, -12, 0)), False)
sketch21.addGeometry(Part.LineSegment(V(97, -12, 0), V(97, -28, 0)), False)
sketch21.addGeometry(Part.LineSegment(V(97, -28, 0), V(91, -28, 0)), False)
sketch21.addConstraint(Sketcher.Constraint("Coincident", 0, 2, 1, 1))
sketch21.addConstraint(Sketcher.Constraint("Coincident", 1, 2, 2, 1))
sketch21.addConstraint(Sketcher.Constraint("Coincident", 2, 2, 3, 1))
sketch21.addConstraint(Sketcher.Constraint("Coincident", 3, 2, 0, 1))
sketch21.addConstraint(Sketcher.Constraint("Vertical", 0))
sketch21.addConstraint(Sketcher.Constraint("Horizontal", 1))
sketch21.addConstraint(Sketcher.Constraint("Vertical", 2))
sketch21.addConstraint(Sketcher.Constraint("Horizontal", 3))
sketch21.addConstraint(Sketcher.Constraint("DistanceX", 1, 1, 1, 2, Q("6 mm")))
sketch21.addConstraint(Sketcher.Constraint("DistanceY", 0, 1, 0, 2, Q("15 mm")))
sketch21.addConstraint(Sketcher.Constraint("DistanceX", -1, 1, 0, 2, Q("91 mm")))
sketch21.addConstraint(Sketcher.Constraint("DistanceY", 0, 2, -1, 1, Q("12.5 mm")))
sketch21.setExpression("Constraints[8]", "Params.sketch21_width")
sketch21.setExpression("Constraints[9]", "Params.sketch21_height")
pocket20 = doc.addObject("PartDesign::Pocket", "Pocket019")
body.addObject(pocket20)
pocket20.Profile = sketch21
pocket20.Type = "UpToFirst"
pocket20.Reversed = True

doc.recompute()
